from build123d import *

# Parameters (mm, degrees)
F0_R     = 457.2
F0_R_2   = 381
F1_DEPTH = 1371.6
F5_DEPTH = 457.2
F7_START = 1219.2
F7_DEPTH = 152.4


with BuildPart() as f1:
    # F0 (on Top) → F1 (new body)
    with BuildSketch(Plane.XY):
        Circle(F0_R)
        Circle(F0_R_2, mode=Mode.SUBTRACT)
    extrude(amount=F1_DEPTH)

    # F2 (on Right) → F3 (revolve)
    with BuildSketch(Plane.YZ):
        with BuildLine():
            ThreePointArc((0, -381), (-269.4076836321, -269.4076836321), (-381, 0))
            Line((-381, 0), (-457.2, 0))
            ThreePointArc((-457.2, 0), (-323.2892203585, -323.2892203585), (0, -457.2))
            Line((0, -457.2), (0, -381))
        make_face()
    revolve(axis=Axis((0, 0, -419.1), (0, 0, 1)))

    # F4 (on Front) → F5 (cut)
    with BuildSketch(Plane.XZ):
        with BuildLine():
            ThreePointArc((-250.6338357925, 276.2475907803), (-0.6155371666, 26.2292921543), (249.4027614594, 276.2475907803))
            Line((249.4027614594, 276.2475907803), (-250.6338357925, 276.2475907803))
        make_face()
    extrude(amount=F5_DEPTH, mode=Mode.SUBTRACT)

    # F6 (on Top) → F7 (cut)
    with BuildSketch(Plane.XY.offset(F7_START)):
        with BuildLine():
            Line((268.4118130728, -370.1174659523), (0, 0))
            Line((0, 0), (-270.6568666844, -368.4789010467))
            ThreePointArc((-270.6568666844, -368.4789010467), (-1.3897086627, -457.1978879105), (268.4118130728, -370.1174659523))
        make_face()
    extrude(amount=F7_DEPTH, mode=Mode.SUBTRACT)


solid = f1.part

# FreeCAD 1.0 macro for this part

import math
import FreeCAD as App
import Part
import Sketcher
Q = App.Units.Quantity

doc = App.newDocument("Part")
body = doc.addObject("PartDesign::Body", "Body")

# Sketch on XY plane
sketch1 = body.newObject("Sketcher::SketchObject", "Sketch")
sketch1.AttachmentSupport = (doc.getObject("XY_Plane"), [""])
sketch1.MapMode = "FlatFace"
sketch1.addGeometry([
    Part.Circle(App.Vector(0, 0, 0), App.Vector(0, 0, 1), 457),
    Part.Circle(App.Vector(0, 0, 0), App.Vector(0, 0, 1), 381),
], False)
sketch1.addConstraint([
    Sketcher.Constraint("Coincident", 0, 3, -1, 1),
    Sketcher.Constraint("Coincident", 1, 3, -1, 1),
    Sketcher.Constraint("Diameter", 0, Q("36 in")),
    Sketcher.Constraint("Diameter", 1, Q("30 in")),
])
pad1 = body.newObject("PartDesign::Pad", "Pad")
pad1.Profile = sketch1
pad1.Length = Q("54 in")

# Sketch on YZ plane
sketch2 = body.newObject("Sketcher::SketchObject", "Sketch001")
sketch2.AttachmentSupport = (doc.getObject("YZ_Plane"), [""])
sketch2.MapMode = "FlatFace"
sketch2.addGeometry([
    Part.ArcOfCircle(Part.Circle(App.Vector(0, 0, 0), App.Vector(0, 0, 1), 381), math.radians(180), math.radians(270)),
    Part.LineSegment(App.Vector(-381, 0, 0), App.Vector(-457, 0, 0)),
    Part.ArcOfCircle(Part.Circle(App.Vector(0, 0, 0), App.Vector(0, 0, 1), 457), math.radians(180), math.radians(270)),
    Part.LineSegment(App.Vector(0, -457, 0), App.Vector(0, -381, 0)),
], False)
sketch2.addConstraint([
    Sketcher.Constraint("Coincident", 0, 1, 1, 1),
    Sketcher.Constraint("Coincident", 1, 2, 2, 1),
    Sketcher.Constraint("Coincident", 2, 2, 3, 1),
    Sketcher.Constraint("Coincident", 3, 2, 0, 2),
    Sketcher.Constraint("Horizontal", 1),
    Sketcher.Constraint("Vertical", 3),
    Sketcher.Constraint("Coincident", 0, 3, -1, 1),
    Sketcher.Constraint("Coincident", 2, 3, -1, 1),
    Sketcher.Constraint("PointOnObject", 1, 2, -1),
    Sketcher.Constraint("PointOnObject", 3, 2, -2),
    Sketcher.Constraint("Radius", 0, Q("15 in")),
    Sketcher.Constraint("Radius", 2, Q("18 in")),
])
revolution = body.newObject("PartDesign::Revolution", "Revolution")
revolution.Profile = sketch2
revolution.ReferenceAxis = (sketch2, ["V_Axis"])
revolution.Angle = 360

# Sketch on XZ plane
sketch3 = body.newObject("Sketcher::SketchObject", "Sketch002")
sketch3.AttachmentSupport = (doc.getObject("XZ_Plane"), [""])
sketch3.MapMode = "FlatFace"
sketch3.addGeometry([
    Part.ArcOfCircle(Part.Circle(App.Vector(-1, 276, 0), App.Vector(0, 0, 1), 250), math.radians(180), math.radians(360)),
    Part.LineSegment(App.Vector(249, 276, 0), App.Vector(-251, 276, 0)),
], False)
sketch3.addConstraint([
    Sketcher.Constraint("Coincident", 0, 1, 1, 2),
    Sketcher.Constraint("Coincident", 1, 1, 0, 2),
    Sketcher.Constraint("Horizontal", 1),
    Sketcher.Constraint("Radius", 0, Q("250.018299 mm")),
    Sketcher.Constraint("DistanceY", -1, 1, 0, 3, Q("276.247591 mm")),
    Sketcher.Constraint("DistanceY", -1, 1, 0, 1, Q("276.247591 mm")),
    Sketcher.Constraint("DistanceX", -1, 1, 1, 1, Q("249.402761 mm")),
])
pocket1 = body.newObject("PartDesign::Pocket", "Pocket")
pocket1.Profile = sketch3
pocket1.Length = Q("18 in")
pocket1.Reversed = True

# Sketch on XY plane
sketch4 = body.newObject("Sketcher::SketchObject", "Sketch003")
sketch4.AttachmentSupport = (doc.getObject("XY_Plane"), [""])
sketch4.MapMode = "FlatFace"
sketch4.AttachmentOffset = App.Placement(App.Vector(0, 0, 48 * 25.4), App.Rotation())
sketch4.addGeometry([
    Part.LineSegment(App.Vector(268, -370, 0), App.Vector(0, 0, 0)),
    Part.LineSegment(App.Vector(0, 0, 0), App.Vector(-271, -368, 0)),
    Part.ArcOfCircle(Part.Circle(App.Vector(0, 0, 0), App.Vector(0, 0, 1), 457), math.radians(-126), math.radians(-54)),
], False)
sketch4.addConstraint([
    Sketcher.Constraint("Coincident", 0, 2, 1, 1),
    Sketcher.Constraint("Coincident", 1, 2, 2, 1),
    Sketcher.Constraint("Coincident", 2, 2, 0, 1),
    Sketcher.Constraint("Coincident", 2, 3, -1, 1),
    Sketcher.Constraint("Coincident", 0, 2, -1, 1),
    Sketcher.Constraint("Radius", 2, Q("18 in")),
    Sketcher.Constraint("DistanceY", 1, 2, -1, 1, Q("368.478901 mm")),
    Sketcher.Constraint("DistanceX", 1, 2, 2, 2, Q("539.06868 mm")),
])
pocket2 = body.newObject("PartDesign::Pocket", "Pocket001")
pocket2.Profile = sketch4
pocket2.Length = Q("6 in")
pocket2.Reversed = True

doc.recompute()
